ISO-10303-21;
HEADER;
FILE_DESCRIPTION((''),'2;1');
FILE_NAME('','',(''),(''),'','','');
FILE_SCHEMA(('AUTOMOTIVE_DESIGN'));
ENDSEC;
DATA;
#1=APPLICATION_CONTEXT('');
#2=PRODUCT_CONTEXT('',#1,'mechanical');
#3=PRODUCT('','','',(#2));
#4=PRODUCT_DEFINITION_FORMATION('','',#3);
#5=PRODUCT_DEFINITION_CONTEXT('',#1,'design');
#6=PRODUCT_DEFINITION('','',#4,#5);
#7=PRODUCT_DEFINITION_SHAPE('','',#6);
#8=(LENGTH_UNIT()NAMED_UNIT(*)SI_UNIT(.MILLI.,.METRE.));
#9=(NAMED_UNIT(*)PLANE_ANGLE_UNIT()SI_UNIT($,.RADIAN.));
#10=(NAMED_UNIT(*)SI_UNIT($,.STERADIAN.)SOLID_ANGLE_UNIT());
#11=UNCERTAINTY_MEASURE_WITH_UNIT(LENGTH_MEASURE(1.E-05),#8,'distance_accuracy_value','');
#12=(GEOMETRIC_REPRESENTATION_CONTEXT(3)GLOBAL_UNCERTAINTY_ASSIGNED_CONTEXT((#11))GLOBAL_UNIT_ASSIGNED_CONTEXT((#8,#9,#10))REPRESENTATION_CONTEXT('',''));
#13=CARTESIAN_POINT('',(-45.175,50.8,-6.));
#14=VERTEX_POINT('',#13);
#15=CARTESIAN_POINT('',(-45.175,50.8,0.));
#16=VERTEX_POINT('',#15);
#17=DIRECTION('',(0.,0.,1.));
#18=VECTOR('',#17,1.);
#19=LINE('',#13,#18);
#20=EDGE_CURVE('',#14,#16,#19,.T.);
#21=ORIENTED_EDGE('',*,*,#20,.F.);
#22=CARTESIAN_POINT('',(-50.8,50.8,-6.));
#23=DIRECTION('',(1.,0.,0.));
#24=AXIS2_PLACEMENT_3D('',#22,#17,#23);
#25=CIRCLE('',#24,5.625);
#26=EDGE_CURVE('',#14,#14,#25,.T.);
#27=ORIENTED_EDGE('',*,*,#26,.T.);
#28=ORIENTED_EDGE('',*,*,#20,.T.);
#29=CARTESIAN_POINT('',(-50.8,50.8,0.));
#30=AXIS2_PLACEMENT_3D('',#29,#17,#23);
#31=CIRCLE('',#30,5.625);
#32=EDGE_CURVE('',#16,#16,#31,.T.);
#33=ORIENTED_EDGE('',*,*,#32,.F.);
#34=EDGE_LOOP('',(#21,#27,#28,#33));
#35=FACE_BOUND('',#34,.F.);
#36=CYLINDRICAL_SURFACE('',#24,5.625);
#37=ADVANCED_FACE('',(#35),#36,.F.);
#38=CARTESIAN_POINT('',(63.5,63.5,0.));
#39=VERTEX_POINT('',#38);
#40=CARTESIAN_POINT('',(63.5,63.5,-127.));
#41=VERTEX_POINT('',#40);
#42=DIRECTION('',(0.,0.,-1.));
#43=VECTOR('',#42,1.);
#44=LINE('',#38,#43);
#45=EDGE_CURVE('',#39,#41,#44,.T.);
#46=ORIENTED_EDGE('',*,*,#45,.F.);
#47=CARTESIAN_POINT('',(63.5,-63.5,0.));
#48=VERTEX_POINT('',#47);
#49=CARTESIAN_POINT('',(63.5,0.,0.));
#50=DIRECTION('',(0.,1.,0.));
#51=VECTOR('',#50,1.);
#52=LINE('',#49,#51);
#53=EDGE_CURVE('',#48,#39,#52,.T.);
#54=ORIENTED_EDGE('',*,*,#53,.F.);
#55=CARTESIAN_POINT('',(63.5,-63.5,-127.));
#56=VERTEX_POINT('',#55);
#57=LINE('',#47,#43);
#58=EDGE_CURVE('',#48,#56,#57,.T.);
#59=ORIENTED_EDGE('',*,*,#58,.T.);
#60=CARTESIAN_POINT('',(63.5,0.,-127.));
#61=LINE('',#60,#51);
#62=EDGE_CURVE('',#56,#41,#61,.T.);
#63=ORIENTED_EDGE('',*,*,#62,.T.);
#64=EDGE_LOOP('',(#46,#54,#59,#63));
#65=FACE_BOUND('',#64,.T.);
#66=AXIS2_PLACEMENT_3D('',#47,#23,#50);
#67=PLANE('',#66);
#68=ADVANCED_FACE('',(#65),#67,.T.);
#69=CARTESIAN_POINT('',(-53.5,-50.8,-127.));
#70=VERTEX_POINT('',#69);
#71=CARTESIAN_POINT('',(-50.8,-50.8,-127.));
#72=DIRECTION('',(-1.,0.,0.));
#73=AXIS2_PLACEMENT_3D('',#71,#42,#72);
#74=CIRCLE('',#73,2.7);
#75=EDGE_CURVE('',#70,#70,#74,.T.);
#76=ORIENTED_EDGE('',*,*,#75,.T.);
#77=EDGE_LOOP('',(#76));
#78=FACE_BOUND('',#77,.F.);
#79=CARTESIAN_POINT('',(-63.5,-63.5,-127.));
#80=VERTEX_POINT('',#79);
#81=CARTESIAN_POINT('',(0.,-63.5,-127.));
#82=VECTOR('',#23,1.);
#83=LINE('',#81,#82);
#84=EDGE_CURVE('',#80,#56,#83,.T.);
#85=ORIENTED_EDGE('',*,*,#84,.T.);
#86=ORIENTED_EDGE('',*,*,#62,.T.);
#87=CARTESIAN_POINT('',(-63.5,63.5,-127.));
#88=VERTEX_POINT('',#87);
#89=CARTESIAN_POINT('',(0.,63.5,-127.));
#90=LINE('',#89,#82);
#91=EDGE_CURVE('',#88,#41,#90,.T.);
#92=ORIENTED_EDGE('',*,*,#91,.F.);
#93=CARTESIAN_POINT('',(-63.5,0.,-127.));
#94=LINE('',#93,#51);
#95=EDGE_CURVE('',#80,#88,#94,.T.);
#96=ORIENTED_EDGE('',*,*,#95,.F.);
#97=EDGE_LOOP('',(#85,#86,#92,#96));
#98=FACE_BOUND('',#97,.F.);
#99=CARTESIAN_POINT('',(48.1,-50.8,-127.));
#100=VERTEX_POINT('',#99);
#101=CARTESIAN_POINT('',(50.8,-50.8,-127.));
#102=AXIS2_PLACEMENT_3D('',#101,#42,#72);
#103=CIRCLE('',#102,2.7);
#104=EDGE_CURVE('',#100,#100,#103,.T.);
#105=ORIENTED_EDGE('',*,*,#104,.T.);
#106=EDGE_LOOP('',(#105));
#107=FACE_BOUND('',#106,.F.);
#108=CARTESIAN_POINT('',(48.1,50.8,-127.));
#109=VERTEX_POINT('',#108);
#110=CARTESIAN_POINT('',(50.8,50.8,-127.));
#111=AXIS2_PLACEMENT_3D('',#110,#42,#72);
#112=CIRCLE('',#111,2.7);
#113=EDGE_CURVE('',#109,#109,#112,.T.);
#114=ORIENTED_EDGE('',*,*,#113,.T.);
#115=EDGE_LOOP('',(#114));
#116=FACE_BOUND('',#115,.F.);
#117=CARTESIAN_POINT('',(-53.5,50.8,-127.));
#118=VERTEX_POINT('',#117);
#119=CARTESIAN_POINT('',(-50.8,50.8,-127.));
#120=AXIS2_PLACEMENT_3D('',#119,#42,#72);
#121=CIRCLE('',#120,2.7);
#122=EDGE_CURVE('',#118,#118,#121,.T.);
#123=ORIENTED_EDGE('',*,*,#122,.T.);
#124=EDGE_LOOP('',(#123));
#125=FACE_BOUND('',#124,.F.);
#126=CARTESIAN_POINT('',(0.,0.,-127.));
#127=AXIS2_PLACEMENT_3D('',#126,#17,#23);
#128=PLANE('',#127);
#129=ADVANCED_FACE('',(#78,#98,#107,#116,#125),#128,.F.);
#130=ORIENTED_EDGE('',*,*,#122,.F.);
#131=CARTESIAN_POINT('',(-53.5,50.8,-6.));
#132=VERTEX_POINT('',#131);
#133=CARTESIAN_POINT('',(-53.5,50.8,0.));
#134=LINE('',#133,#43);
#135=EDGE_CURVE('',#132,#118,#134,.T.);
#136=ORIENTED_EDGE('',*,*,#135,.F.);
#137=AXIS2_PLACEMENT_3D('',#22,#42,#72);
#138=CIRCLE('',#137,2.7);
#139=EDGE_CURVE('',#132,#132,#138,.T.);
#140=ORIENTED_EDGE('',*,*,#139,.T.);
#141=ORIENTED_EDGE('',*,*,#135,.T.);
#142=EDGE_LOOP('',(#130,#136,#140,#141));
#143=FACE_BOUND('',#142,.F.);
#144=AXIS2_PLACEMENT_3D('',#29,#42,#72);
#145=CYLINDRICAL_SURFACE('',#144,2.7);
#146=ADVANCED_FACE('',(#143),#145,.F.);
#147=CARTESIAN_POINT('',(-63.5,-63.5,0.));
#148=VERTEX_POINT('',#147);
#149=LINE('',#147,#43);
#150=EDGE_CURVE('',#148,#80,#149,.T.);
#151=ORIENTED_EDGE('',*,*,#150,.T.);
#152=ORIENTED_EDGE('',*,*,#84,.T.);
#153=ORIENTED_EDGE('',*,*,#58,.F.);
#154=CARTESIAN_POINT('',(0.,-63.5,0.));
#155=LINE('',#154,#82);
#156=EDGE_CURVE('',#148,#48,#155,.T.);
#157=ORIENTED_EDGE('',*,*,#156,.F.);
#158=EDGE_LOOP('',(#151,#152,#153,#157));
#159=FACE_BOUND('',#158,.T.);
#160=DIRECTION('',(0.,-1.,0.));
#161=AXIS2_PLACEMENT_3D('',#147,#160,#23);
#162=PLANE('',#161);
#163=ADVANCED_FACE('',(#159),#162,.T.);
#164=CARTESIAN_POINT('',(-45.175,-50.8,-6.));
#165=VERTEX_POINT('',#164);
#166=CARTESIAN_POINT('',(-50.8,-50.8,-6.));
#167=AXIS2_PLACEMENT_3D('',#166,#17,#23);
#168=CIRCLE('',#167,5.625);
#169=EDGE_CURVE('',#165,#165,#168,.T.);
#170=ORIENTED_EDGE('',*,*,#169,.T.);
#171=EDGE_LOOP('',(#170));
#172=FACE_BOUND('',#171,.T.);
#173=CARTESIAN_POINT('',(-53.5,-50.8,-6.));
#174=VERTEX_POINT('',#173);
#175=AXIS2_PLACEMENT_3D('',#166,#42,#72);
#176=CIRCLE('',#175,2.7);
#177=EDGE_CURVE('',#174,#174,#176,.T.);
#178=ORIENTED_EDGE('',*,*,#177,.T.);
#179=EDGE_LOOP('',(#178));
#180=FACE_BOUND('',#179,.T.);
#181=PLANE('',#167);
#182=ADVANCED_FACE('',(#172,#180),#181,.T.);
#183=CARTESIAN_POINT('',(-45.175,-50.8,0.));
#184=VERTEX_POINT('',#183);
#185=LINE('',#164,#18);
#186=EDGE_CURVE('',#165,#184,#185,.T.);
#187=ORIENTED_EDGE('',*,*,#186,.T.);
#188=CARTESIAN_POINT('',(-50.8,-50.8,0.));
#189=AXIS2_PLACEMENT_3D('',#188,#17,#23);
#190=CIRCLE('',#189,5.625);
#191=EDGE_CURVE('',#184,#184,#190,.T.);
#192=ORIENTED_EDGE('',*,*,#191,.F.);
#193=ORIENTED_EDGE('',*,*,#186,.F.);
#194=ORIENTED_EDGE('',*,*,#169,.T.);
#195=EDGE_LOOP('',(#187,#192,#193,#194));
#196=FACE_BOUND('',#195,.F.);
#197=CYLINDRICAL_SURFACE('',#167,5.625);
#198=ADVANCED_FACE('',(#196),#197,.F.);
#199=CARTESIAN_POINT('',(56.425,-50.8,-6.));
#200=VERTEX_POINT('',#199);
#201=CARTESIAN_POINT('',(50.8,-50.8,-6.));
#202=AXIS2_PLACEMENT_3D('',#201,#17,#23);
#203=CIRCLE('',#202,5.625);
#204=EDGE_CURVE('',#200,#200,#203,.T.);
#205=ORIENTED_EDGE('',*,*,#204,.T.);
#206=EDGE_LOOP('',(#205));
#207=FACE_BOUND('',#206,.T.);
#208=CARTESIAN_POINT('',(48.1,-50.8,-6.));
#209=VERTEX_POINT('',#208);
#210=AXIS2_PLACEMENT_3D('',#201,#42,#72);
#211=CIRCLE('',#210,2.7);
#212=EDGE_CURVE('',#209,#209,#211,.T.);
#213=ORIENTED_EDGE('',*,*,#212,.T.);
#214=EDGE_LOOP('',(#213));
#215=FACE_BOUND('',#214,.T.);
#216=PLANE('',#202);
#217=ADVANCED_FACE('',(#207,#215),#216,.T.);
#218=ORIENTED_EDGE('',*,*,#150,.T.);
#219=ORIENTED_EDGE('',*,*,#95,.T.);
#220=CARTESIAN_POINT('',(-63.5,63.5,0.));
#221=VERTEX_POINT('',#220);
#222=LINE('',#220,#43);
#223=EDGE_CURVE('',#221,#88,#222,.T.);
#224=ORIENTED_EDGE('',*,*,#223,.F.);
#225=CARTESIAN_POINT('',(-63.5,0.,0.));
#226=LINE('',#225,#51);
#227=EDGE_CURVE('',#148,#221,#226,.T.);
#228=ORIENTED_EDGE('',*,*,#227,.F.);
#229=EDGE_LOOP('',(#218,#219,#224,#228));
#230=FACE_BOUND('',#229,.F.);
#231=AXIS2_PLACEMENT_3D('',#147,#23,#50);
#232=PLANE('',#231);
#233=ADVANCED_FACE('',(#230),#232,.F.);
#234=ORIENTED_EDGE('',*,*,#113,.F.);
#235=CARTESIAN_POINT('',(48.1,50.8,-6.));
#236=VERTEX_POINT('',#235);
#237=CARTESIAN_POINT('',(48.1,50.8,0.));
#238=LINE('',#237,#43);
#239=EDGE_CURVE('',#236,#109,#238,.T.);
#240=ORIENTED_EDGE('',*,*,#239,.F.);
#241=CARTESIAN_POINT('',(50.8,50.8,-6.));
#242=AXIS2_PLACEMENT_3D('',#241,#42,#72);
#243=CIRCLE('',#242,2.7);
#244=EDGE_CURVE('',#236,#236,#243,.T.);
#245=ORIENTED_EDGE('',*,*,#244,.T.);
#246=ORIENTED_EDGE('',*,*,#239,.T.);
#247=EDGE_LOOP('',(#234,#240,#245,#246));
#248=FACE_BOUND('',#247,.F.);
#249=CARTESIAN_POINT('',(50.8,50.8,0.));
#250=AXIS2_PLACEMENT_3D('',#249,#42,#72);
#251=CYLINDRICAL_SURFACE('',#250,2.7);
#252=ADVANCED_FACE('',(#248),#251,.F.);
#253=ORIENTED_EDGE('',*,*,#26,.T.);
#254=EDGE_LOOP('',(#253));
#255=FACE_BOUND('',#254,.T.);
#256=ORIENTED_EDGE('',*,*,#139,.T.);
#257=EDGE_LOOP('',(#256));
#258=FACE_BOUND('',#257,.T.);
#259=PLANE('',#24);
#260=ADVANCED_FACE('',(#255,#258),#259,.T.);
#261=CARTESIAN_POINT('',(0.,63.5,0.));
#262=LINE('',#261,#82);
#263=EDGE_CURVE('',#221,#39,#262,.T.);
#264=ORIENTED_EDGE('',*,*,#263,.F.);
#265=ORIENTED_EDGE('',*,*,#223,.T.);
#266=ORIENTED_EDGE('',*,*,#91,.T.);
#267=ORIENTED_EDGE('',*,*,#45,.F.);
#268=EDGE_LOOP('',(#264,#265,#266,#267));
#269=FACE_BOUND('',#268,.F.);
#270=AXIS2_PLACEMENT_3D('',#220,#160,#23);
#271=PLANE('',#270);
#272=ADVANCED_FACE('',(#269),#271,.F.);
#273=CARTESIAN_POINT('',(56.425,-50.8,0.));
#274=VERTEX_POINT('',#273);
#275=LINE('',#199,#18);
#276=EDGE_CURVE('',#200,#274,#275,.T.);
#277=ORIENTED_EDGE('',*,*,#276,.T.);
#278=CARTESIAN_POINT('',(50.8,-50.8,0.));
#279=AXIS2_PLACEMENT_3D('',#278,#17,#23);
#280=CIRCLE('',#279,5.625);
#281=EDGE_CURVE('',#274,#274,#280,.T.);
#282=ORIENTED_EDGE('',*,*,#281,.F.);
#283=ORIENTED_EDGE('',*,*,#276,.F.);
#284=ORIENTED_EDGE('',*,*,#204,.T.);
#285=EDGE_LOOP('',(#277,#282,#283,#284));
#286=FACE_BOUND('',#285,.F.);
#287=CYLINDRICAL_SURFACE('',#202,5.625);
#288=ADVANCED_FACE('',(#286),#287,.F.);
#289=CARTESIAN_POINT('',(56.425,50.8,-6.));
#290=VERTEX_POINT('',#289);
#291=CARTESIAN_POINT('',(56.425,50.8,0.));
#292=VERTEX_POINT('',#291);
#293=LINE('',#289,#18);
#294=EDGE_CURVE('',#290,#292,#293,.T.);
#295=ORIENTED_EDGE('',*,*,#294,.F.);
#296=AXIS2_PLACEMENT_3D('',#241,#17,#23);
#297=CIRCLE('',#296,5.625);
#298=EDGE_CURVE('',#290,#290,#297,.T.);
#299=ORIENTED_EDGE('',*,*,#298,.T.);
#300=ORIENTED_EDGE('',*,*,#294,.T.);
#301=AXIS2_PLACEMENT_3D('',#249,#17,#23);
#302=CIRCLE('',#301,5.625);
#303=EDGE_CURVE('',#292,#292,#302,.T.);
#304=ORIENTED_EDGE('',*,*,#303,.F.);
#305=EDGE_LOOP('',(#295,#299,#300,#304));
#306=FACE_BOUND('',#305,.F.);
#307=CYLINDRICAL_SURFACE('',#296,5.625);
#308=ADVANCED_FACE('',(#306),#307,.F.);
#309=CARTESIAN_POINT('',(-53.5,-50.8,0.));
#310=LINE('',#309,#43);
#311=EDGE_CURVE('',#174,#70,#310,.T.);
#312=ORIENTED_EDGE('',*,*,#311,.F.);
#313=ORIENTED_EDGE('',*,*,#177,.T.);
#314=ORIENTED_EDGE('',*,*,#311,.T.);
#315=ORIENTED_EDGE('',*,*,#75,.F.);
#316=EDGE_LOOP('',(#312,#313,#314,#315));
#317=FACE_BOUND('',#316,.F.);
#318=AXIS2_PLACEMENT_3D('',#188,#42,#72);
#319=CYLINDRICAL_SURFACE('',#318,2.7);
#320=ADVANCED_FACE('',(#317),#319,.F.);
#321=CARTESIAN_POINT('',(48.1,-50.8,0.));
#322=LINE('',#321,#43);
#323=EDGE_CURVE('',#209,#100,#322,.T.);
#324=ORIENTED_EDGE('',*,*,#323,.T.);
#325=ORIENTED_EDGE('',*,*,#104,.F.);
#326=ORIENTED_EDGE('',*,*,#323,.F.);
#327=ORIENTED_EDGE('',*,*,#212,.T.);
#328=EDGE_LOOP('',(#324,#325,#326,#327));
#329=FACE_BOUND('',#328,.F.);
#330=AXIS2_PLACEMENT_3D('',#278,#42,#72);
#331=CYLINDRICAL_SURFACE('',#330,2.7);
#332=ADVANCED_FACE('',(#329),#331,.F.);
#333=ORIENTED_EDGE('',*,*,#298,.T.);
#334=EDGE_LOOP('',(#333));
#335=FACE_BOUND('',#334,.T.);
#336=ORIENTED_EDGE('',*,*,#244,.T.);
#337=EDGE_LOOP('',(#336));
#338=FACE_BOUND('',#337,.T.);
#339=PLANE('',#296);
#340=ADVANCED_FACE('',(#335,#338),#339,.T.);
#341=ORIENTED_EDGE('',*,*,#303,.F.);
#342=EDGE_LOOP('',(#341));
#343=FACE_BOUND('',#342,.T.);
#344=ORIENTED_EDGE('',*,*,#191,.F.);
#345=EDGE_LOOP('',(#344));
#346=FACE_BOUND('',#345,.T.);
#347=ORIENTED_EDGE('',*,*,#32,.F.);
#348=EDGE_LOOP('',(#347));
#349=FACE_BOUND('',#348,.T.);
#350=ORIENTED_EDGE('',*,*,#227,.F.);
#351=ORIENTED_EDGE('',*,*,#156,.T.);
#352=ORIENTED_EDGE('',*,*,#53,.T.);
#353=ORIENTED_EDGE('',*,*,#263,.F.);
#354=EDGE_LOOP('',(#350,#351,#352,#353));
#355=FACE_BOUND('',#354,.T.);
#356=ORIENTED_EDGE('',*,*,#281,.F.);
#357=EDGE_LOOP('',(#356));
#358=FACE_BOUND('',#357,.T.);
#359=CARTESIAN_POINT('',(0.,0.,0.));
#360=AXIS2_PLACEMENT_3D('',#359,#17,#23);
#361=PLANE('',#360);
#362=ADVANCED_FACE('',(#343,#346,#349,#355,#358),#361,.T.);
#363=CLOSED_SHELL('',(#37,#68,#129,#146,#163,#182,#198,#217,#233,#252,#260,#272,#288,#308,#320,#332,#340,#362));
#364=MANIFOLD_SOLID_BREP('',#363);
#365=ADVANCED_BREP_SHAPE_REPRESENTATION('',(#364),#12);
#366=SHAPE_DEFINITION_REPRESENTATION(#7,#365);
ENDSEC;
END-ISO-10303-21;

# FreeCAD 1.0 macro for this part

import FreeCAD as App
import Part
import Sketcher
Q = App.Units.Quantity

doc = App.newDocument("Part")
body = doc.addObject("PartDesign::Body", "Body")

# Sketch on XY plane
sketch1 = body.newObject("Sketcher::SketchObject", "Sketch")
sketch1.AttachmentSupport = (doc.getObject("XY_Plane"), [""])
sketch1.MapMode = "FlatFace"
sketch1.addGeometry([
    Part.LineSegment(App.Vector(-63.5, 63.5, 0), App.Vector(-63.5, -63.5, 0)),
    Part.LineSegment(App.Vector(-63.5, -63.5, 0), App.Vector(63.5, -63.5, 0)),
    Part.LineSegment(App.Vector(63.5, -63.5, 0), App.Vector(63.5, 63.5, 0)),
    Part.LineSegment(App.Vector(63.5, 63.5, 0), App.Vector(-63.5, 63.5, 0)),
], False)
sketch1.addConstraint([
    Sketcher.Constraint("Coincident", 0, 2, 1, 1),
    Sketcher.Constraint("Coincident", 1, 2, 2, 1),
    Sketcher.Constraint("Coincident", 2, 2, 3, 1),
    Sketcher.Constraint("Coincident", 3, 2, 0, 1),
    Sketcher.Constraint("Vertical", 0),
    Sketcher.Constraint("Horizontal", 1),
    Sketcher.Constraint("Vertical", 2),
    Sketcher.Constraint("Horizontal", 3),
    Sketcher.Constraint("Symmetric", 0, 2, 2, 2, -1, 1),
    Sketcher.Constraint("Equal", 3, 0),
    Sketcher.Constraint("DistanceX", 1, 1, 1, 2, Q("127 mm")),
])
pad1 = body.newObject("PartDesign::Pad", "Pad")
pad1.Profile = sketch1
pad1.Length = 127
pad1.Reversed = True

# Sketch on XY plane
sketch2 = body.newObject("Sketcher::SketchObject", "Sketch001")
sketch2.AttachmentSupport = (doc.getObject("XY_Plane"), [""])
sketch2.MapMode = "FlatFace"
sketch2.addGeometry([
    Part.Circle(App.Vector(-50.8, 50.8, 0), App.Vector(0, 0, 1), 2.7),
    Part.Circle(App.Vector(-50.8, -50.8, 0), App.Vector(0, 0, 1), 2.7),
    Part.Circle(App.Vector(50.8, -50.8, 0), App.Vector(0, 0, 1), 2.7),
    Part.Circle(App.Vector(50.8, 50.8, 0), App.Vector(0, 0, 1), 2.7),
], False)
sketch2.addConstraint([
    Sketcher.Constraint("Equal", 0, 1),
    Sketcher.Constraint("Equal", 1, 2),
    Sketcher.Constraint("Equal", 2, 3),
    Sketcher.Constraint("Symmetric", 0, 3, 2, 3, -1, 1),
    Sketcher.Constraint("Symmetric", 1, 3, 3, 3, -1, 1),
    Sketcher.Constraint("Symmetric", 1, 3, 2, 3, -2),
    Sketcher.Constraint("Diameter", 0, Q("5.4 mm")),
    Sketcher.Constraint("DistanceX", 0, 3, -1, 1, Q("50.8 mm")),
    Sketcher.Constraint("DistanceY", -1, 1, 0, 3, Q("50.8 mm")),
])
doc.recompute()
hole = body.newObject("PartDesign::Hole", "Hole")
hole.Profile = sketch2
hole.ThreadType = "None"
hole.Diameter = 5.4
hole.DepthType = "ThroughAll"
hole.HoleCutType = "Counterbore"
hole.HoleCutDiameter = 11.25
hole.HoleCutDepth = 6

doc.recompute()
